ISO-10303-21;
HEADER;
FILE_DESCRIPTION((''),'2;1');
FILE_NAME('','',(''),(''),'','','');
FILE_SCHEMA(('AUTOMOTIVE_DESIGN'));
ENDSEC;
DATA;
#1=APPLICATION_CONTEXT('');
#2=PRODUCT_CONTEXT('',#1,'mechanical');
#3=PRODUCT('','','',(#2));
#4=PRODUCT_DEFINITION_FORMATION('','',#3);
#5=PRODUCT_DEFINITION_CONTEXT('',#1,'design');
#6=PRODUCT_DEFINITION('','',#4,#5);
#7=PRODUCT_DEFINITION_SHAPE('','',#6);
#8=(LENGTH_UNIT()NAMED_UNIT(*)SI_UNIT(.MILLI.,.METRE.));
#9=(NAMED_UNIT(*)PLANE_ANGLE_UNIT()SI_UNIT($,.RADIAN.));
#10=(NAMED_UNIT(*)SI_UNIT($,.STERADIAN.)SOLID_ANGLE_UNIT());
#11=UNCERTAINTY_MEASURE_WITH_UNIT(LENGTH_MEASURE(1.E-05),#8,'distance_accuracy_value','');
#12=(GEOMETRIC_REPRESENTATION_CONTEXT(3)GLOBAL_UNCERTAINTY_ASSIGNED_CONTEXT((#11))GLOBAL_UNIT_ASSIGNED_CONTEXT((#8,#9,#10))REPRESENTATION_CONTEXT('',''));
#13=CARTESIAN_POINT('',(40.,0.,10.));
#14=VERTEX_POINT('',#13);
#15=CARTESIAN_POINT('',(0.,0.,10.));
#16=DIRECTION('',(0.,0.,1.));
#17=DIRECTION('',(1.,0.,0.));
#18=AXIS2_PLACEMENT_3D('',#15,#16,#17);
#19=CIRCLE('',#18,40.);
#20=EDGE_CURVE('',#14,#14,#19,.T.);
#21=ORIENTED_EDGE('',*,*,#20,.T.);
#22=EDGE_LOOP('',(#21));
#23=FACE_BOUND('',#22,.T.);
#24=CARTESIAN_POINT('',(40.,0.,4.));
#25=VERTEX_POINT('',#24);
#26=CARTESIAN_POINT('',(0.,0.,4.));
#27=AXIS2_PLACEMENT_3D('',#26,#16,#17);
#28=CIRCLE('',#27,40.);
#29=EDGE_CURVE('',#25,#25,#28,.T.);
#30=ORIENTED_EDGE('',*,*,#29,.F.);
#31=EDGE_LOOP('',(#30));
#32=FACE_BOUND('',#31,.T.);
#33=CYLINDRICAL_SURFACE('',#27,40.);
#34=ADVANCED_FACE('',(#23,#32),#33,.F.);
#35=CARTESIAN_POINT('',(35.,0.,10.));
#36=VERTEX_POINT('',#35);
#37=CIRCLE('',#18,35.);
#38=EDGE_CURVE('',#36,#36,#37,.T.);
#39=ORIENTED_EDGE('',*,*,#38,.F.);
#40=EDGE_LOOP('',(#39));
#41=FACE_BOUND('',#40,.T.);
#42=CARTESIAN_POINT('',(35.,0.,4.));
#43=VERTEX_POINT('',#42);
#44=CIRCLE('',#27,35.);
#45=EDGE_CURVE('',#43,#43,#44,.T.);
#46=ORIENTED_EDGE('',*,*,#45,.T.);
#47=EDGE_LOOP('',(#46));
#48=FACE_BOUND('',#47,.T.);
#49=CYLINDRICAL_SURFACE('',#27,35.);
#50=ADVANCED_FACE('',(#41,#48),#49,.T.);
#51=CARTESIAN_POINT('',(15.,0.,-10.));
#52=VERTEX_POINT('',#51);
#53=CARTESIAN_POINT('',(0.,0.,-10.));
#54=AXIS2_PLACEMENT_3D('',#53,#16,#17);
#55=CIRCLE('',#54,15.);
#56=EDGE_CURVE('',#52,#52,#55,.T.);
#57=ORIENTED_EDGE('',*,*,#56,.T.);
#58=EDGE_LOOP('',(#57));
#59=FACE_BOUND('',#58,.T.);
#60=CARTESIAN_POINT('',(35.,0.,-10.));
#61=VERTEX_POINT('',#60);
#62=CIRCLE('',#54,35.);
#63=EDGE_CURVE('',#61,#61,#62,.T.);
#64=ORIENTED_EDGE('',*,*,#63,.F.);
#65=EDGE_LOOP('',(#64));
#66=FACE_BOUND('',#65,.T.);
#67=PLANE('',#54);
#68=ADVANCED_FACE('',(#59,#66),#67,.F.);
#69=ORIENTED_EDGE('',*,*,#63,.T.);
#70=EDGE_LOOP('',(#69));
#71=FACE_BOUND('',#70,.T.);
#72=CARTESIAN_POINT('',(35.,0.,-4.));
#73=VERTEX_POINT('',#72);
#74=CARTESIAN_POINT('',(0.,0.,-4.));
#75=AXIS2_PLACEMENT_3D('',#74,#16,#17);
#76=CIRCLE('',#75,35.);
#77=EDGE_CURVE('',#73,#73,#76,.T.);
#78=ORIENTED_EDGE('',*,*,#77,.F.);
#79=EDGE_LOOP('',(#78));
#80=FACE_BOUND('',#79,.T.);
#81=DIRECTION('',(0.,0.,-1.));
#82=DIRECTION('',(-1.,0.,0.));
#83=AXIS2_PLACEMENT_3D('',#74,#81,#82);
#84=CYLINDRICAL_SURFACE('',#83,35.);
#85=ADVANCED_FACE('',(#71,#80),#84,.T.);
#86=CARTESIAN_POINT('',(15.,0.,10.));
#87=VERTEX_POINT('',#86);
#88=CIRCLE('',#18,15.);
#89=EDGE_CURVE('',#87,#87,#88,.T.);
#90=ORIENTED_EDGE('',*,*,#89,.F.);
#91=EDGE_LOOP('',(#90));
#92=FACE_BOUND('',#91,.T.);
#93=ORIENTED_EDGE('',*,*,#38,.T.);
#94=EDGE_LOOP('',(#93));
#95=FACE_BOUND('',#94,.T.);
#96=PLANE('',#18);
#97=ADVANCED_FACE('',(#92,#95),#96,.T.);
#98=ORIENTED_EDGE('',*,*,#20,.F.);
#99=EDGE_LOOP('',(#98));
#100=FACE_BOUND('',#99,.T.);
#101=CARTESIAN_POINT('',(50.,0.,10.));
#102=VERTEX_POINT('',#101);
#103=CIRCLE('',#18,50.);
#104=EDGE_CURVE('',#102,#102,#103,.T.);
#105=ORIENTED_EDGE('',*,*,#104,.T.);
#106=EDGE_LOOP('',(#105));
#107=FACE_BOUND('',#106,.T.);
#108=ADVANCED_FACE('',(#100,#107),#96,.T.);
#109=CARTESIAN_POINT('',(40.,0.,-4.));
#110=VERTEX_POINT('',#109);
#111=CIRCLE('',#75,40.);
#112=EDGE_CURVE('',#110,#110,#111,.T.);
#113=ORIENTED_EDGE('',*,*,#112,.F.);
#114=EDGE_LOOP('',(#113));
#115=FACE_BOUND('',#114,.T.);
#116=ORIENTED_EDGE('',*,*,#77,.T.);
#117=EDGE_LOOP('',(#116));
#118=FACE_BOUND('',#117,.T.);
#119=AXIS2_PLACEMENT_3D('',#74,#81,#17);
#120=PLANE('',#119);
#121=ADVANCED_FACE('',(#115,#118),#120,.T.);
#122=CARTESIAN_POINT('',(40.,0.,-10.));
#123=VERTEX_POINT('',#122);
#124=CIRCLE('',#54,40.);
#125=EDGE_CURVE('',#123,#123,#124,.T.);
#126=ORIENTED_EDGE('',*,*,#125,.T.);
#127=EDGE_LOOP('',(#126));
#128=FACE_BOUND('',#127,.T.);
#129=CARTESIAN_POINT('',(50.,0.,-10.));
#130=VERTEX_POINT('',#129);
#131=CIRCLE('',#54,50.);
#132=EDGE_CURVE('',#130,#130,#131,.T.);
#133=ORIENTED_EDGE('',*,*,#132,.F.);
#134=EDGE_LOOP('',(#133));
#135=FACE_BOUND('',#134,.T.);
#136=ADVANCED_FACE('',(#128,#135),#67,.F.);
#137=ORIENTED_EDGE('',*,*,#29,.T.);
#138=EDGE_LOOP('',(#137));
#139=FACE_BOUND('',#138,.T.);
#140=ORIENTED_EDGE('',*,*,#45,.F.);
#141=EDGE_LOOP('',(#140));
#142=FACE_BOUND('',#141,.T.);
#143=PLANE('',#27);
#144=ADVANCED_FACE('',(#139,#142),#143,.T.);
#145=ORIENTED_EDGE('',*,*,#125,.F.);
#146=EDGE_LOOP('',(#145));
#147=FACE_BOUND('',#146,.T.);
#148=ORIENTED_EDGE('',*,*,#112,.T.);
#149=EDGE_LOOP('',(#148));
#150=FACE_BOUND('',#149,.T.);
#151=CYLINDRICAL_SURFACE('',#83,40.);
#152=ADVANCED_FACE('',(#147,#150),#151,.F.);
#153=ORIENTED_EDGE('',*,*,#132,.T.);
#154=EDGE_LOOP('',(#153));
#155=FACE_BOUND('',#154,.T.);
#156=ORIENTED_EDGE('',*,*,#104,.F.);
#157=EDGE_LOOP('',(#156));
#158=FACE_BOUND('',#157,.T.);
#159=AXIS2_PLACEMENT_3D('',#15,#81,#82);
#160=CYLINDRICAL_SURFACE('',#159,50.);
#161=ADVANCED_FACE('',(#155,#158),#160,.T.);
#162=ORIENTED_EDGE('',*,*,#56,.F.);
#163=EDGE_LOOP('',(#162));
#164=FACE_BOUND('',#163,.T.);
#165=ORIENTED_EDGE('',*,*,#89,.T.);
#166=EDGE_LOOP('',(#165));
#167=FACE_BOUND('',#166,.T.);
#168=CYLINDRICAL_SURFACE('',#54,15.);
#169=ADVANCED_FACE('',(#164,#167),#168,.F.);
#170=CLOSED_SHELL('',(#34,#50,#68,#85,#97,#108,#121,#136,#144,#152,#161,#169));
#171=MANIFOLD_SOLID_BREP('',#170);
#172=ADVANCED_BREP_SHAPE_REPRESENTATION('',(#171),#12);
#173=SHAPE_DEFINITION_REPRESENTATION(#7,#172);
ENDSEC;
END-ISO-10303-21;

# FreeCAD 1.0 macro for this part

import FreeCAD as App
import Part
import Sketcher
from FreeCAD import Vector

doc = App.newDocument("Part")
body = doc.addObject("PartDesign::Body", "Body")

# Sketch on XY plane
sketch1 = body.newObject("Sketcher::SketchObject", "Sketch")
sketch1.AttachmentSupport = (doc.getObject("XY_Plane"), [""])
sketch1.MapMode = "FlatFace"
sketch1.addGeometry(Part.Circle(Vector(0, 0, 0), Vector(0, 0, 1), 50), False)
sketch1.addConstraint(Sketcher.Constraint("Coincident", 0, 3, -1, 1))
sketch1.addConstraint(Sketcher.Constraint("Diameter", 0, 100.0))
pad1 = body.newObject("PartDesign::Pad", "Pad")
pad1.Profile = sketch1
pad1.Length = 20
pad1.Midplane = True

# Sketch on XY plane
sketch2 = body.newObject("Sketcher::SketchObject", "Sketch001")
sketch2.AttachmentSupport = (doc.getObject("XY_Plane"), [""])
sketch2.MapMode = "FlatFace"
sketch2.AttachmentOffset = App.Placement(Vector(0, 0, 10), App.Rotation())
sketch2.addGeometry(Part.Circle(Vector(0, 0, 0), Vector(0, 0, 1), 15), False)
sketch2.addConstraint(Sketcher.Constraint("Coincident", 0, 3, -1, 1))
sketch2.addConstraint(Sketcher.Constraint("Diameter", 0, 30.0))
pocket1 = body.newObject("PartDesign::Pocket", "Pocket")
pocket1.Profile = sketch2
pocket1.Length = 20

# Sketch on XY plane
sketch3 = body.newObject("Sketcher::SketchObject", "Sketch002")
sketch3.AttachmentSupport = (doc.getObject("XY_Plane"), [""])
sketch3.MapMode = "FlatFace"
sketch3.AttachmentOffset = App.Placement(Vector(0, 0, 10), App.Rotation())
sketch3.addGeometry(Part.Circle(Vector(0, 0, 0), Vector(0, 0, 1), 40), False)
sketch3.addGeometry(Part.Circle(Vector(0, 0, 0), Vector(0, 0, 1), 35), False)
sketch3.addConstraint(Sketcher.Constraint("Coincident", 0, 3, -1, 1))
sketch3.addConstraint(Sketcher.Constraint("Coincident", 1, 3, -1, 1))
sketch3.addConstraint(Sketcher.Constraint("Diameter", 0, 80.0))
sketch3.addConstraint(Sketcher.Constraint("Diameter", 1, 70.0))
pocket2 = body.newObject("PartDesign::Pocket", "Pocket001")
pocket2.Profile = sketch3
pocket2.Length = 6
doc.recompute()

mirrored = body.newObject("PartDesign::Mirrored", "Mirrored")
mirrored.Originals = [pocket2]
mirrored.MirrorPlane = (doc.getObject("XY_Plane"), [""])
body.Tip = mirrored

doc.recompute()
